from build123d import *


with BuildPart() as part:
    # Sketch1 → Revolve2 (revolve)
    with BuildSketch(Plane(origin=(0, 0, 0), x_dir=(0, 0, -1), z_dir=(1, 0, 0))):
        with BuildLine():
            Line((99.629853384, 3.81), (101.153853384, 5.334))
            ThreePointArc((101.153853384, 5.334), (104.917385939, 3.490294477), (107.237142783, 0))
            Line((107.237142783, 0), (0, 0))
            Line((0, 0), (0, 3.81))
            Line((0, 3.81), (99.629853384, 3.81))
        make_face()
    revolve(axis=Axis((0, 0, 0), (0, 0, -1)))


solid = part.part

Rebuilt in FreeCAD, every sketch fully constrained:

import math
import FreeCAD as App
import Part
import Sketcher
Q = App.Units.Quantity

doc = App.newDocument("Part")
body = doc.addObject("PartDesign::Body", "Body")

sketch1 = body.newObject("Sketcher::SketchObject", "Sketch")
sketch1.AttachmentSupport = (doc.getObject("YZ_Plane"), [""])
sketch1.MapMode = "FlatFace"
sketch1.addGeometry(Part.LineSegment(App.Vector(5.334, -101.153853, 0), App.Vector(3.81, -99.629853, 0)), False)
sketch1.addGeometry(Part.LineSegment(App.Vector(3.81, -99.629853, 0), App.Vector(3.81, 0, 0)), False)
sketch1.addGeometry(Part.LineSegment(App.Vector(3.81, 0, 0), App.Vector(0, 0, 0)), False)
sketch1.addGeometry(Part.LineSegment(App.Vector(0, 0, 0), App.Vector(0, -107.237143, 0)), False)
sketch1.addGeometry(Part.ArcOfCircle(Part.Circle(App.Vector(-2.54, -99.629853, 0), App.Vector(0, 0, 1), 8.020128), math.radians(-71.536336), math.radians(-10.954063)), False)
sketch1.addConstraint(Sketcher.Constraint("Coincident", 0, 2, 1, 1))
sketch1.addConstraint(Sketcher.Constraint("Coincident", 1, 2, 2, 1))
sketch1.addConstraint(Sketcher.Constraint("Coincident", 2, 2, 3, 1))
sketch1.addConstraint(Sketcher.Constraint("Coincident", 3, 2, 4, 1))
sketch1.addConstraint(Sketcher.Constraint("Coincident", 4, 2, 0, 1))
sketch1.addConstraint(Sketcher.Constraint("Vertical", 1))
sketch1.addConstraint(Sketcher.Constraint("Horizontal", 2))
sketch1.addConstraint(Sketcher.Constraint("Vertical", 3))
sketch1.addConstraint(Sketcher.Constraint("Coincident", 2, 2, -1, 1))
sketch1.addConstraint(Sketcher.Constraint("Horizontal", 4, 3, 0, 2))
sketch1.addConstraint(Sketcher.Constraint("Angle", 0, Q("135 deg")))
sketch1.addConstraint(Sketcher.Constraint("DistanceX", 2, 2, 2, 1, Q("0.15 in")))
sketch1.addConstraint(Sketcher.Constraint("DistanceX", 4, 3, -1, 1, Q("0.1 in")))
sketch1.addConstraint(Sketcher.Constraint("DistanceX", -1, 1, 4, 2, Q("0.21 in")))
sketch1.addConstraint(Sketcher.Constraint("DistanceY", 1, 1, 1, 2, Q("99.629853 mm")))
revolution = body.newObject("PartDesign::Revolution", "Revolution")
revolution.Profile = sketch1
revolution.ReferenceAxis = (sketch1, ["V_Axis"])
revolution.Angle = 360

doc.recompute()
